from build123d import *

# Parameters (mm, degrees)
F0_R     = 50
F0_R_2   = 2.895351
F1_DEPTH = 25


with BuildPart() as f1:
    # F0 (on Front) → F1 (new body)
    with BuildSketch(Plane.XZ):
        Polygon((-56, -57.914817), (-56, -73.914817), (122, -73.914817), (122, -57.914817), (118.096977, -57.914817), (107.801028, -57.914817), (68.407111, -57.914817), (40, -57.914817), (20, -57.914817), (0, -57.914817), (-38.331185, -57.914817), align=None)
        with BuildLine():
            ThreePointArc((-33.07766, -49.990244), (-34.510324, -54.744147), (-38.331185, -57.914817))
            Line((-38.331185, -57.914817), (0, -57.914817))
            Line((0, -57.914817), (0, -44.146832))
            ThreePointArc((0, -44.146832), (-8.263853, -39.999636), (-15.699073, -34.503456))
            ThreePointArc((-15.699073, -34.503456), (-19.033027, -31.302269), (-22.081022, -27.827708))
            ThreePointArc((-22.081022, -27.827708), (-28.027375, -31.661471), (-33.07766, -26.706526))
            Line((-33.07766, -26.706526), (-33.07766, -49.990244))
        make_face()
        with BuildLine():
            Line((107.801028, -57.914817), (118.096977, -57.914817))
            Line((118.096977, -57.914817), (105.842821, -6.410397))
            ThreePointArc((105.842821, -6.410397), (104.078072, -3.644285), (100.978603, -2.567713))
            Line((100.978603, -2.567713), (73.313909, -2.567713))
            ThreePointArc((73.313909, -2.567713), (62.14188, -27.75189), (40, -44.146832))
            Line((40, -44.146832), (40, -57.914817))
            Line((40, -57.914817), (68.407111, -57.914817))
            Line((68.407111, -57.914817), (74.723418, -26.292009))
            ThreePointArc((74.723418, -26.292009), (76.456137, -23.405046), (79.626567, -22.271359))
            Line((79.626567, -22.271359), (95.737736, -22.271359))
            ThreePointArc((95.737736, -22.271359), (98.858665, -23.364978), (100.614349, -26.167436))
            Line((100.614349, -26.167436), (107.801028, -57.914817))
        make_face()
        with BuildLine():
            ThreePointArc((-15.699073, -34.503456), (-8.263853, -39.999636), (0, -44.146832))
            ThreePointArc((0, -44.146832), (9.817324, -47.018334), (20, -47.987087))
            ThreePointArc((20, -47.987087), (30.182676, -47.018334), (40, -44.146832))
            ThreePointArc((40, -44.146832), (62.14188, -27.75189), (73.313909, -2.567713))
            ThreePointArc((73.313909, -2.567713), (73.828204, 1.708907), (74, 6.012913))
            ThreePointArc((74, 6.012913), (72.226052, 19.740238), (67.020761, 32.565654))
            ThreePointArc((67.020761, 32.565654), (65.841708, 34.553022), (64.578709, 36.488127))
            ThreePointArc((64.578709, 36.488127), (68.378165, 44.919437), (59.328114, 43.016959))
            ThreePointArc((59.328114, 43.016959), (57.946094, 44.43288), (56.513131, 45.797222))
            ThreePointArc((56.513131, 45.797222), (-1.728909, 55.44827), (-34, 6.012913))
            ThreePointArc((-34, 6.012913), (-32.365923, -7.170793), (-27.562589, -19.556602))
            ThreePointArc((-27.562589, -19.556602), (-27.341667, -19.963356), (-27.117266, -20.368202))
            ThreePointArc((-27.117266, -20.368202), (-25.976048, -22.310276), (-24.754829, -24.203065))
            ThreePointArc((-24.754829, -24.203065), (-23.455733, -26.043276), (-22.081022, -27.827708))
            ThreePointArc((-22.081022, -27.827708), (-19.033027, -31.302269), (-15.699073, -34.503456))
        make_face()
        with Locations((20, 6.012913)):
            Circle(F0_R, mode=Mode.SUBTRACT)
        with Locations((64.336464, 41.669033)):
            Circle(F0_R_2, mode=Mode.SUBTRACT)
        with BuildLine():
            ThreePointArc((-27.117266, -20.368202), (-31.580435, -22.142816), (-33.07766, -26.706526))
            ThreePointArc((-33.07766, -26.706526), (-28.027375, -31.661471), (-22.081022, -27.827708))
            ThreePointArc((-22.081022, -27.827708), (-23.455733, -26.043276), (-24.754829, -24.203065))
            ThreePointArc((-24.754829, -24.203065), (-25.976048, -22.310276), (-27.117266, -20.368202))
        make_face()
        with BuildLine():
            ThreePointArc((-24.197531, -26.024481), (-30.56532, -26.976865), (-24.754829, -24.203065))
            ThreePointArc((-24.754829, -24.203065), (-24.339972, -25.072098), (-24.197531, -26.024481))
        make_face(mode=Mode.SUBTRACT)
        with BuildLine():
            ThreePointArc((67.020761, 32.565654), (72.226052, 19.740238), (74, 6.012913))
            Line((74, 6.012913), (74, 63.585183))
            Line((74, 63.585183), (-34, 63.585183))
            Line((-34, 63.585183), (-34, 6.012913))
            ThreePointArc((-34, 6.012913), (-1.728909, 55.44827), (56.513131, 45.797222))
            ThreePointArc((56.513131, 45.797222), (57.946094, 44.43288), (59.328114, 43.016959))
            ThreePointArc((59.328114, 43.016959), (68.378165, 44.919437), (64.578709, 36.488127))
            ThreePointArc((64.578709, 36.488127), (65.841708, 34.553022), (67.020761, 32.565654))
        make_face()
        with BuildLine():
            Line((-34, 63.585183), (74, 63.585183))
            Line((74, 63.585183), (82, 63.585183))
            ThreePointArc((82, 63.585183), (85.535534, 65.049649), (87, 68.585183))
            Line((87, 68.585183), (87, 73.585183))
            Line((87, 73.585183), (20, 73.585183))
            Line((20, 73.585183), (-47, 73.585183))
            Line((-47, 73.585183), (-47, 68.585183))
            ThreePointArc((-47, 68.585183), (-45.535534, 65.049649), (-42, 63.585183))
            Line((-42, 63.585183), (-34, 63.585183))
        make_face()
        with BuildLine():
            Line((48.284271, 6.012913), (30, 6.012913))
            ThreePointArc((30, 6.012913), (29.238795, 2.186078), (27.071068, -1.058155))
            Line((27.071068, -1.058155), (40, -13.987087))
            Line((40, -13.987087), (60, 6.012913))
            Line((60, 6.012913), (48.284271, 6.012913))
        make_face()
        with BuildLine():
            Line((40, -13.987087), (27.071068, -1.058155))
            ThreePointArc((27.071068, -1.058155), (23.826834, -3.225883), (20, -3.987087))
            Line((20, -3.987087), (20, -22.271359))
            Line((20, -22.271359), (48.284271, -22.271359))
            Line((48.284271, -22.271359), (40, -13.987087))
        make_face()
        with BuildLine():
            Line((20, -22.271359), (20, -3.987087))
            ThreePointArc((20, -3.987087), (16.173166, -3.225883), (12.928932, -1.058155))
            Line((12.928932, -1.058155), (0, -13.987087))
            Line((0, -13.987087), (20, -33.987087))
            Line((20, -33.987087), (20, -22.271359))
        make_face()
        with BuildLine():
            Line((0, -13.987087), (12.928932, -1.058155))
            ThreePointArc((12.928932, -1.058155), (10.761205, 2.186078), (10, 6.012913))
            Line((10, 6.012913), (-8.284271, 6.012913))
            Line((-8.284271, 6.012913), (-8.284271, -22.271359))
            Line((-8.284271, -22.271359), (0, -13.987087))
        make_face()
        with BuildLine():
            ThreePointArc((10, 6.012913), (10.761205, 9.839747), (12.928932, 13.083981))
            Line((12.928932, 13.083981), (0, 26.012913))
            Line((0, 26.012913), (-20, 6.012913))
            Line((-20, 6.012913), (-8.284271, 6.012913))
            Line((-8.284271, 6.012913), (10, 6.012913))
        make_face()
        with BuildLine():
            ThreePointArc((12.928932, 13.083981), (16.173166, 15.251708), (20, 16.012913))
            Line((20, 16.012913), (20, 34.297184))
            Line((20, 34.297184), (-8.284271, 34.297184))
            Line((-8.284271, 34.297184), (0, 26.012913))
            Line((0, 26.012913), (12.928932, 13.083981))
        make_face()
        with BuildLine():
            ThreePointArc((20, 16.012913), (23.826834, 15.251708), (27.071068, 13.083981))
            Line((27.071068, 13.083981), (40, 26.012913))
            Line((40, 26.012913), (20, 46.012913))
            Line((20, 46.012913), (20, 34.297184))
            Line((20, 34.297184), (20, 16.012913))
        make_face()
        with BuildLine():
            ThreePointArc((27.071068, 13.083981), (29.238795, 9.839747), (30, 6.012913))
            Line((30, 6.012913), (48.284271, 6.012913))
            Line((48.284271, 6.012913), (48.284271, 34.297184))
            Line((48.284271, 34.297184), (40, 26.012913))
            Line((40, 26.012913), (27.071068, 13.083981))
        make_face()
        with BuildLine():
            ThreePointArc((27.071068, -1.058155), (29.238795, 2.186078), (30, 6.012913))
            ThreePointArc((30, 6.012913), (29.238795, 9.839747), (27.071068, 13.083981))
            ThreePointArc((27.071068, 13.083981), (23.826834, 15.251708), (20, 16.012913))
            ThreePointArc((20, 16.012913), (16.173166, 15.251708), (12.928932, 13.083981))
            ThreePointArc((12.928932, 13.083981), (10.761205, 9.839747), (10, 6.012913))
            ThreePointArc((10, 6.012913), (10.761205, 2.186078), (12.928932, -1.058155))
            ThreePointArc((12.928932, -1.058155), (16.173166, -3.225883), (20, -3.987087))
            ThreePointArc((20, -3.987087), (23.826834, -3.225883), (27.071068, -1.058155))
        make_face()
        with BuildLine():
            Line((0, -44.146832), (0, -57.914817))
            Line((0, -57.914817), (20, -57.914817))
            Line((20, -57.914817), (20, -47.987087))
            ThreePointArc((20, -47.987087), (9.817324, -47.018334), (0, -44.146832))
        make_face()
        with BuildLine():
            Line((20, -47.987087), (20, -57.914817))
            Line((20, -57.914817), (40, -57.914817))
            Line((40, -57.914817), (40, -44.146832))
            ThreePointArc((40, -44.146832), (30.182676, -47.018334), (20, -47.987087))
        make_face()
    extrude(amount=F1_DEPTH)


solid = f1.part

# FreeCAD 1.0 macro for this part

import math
import FreeCAD as App
import Part
import Sketcher
Q = App.Units.Quantity


def add_polygon(sketch, points):
    """Adds a closed chain of lines whose ends are joined by coincident constraints."""
    first, n = sketch.GeometryCount, len(points)
    for a, b in zip(points, points[1:] + points[:1]):
        sketch.addGeometry(Part.LineSegment(App.Vector(*a, 0), App.Vector(*b, 0)), False)
    for i in range(n):
        sketch.addConstraint(Sketcher.Constraint("Coincident", first + i, 2, first + (i + 1) % n, 1))

doc = App.newDocument("Part")
body = doc.addObject("PartDesign::Body", "Body")
body.AllowCompound = True

sketch1 = body.newObject("Sketcher::SketchObject", "Sketch")
sketch1.AttachmentSupport = (doc.getObject("XZ_Plane"), [""])
sketch1.MapMode = "FlatFace"
sketch1.addGeometry(Part.LineSegment(App.Vector(-56, -57.914817, 0), App.Vector(-56, -73.914817, 0)), False)
sketch1.addGeometry(Part.LineSegment(App.Vector(-56, -73.914817, 0), App.Vector(122, -73.914817, 0)), False)
sketch1.addGeometry(Part.LineSegment(App.Vector(122, -73.914817, 0), App.Vector(122, -57.914817, 0)), False)
sketch1.addGeometry(Part.LineSegment(App.Vector(122, -57.914817, 0), App.Vector(118.096977, -57.914817, 0)), False)
sketch1.addGeometry(Part.LineSegment(App.Vector(118.096977, -57.914817, 0), App.Vector(105.842821, -6.410397, 0)), False)
sketch1.addGeometry(Part.ArcOfCircle(Part.Circle(App.Vector(100.978602, -7.567714, 0), App.Vector(0, 0, 1), 5.000001), math.radians(13.383241), math.radians(89.999987)), False)
sketch1.addGeometry(Part.LineSegment(App.Vector(100.978603, -2.567713, 0), App.Vector(73.313909, -2.567713, 0)), False)
sketch1.addGeometry(Part.ArcOfCircle(Part.Circle(App.Vector(19.999988, 6.012912, 0), App.Vector(0, 0, 1), 54.000012), math.radians(-9.143079), math.radians(0.000001)), False)
sketch1.addGeometry(Part.LineSegment(App.Vector(74, 6.012913, 0), App.Vector(74, 63.585183, 0)), False)
sketch1.addGeometry(Part.LineSegment(App.Vector(74, 63.585183, 0), App.Vector(82, 63.585183, 0)), False)
sketch1.addGeometry(Part.ArcOfCircle(Part.Circle(App.Vector(82, 68.585183, 0), App.Vector(0, 0, 1), 5), math.radians(-90.000004), math.radians(0.000004)), False)
sketch1.addGeometry(Part.LineSegment(App.Vector(87, 68.585183, 0), App.Vector(87, 73.585183, 0)), False)
sketch1.addGeometry(Part.LineSegment(App.Vector(87, 73.585183, 0), App.Vector(-47, 73.585183, 0)), False)
sketch1.addGeometry(Part.LineSegment(App.Vector(-47, 73.585183, 0), App.Vector(-47, 68.585183, 0)), False)
sketch1.addGeometry(Part.ArcOfCircle(Part.Circle(App.Vector(-42, 68.585183, 0), App.Vector(0, 0, 1), 5), math.radians(179.999996), math.radians(270.000004)), False)
sketch1.addGeometry(Part.LineSegment(App.Vector(-42, 63.585183, 0), App.Vector(-34, 63.585183, 0)), False)
sketch1.addGeometry(Part.LineSegment(App.Vector(-34, 63.585183, 0), App.Vector(-34, 6.012913, 0)), False)
sketch1.addGeometry(Part.ArcOfCircle(Part.Circle(App.Vector(19.999997, 6.012913, 0), App.Vector(0, 0, 1), 53.999997), math.radians(180), math.radians(208.262352)), False)
sketch1.addGeometry(Part.ArcOfCircle(Part.Circle(App.Vector(19.99809, 6.011856, 0), App.Vector(0, 0, 1), 53.997817), math.radians(-151.737677), math.radians(-150.755378)), False)
sketch1.addGeometry(Part.ArcOfCircle(Part.Circle(App.Vector(-27.452645, -26.024482, 0), App.Vector(0, 0, 1), 5.666214), math.radians(86.606722), math.radians(186.91348)), False)
sketch1.addGeometry(Part.LineSegment(App.Vector(-33.07766, -26.706526, 0), App.Vector(-33.07766, -49.990244, 0)), False)
sketch1.addGeometry(Part.ArcOfCircle(Part.Circle(App.Vector(-41.681252, -49.990245, 0), App.Vector(0, 0, 1), 8.603592), math.radians(-67.084071), math.radians(0.000005)), False)
sketch1.addGeometry(Part.LineSegment(App.Vector(-38.331185, -57.914817, 0), App.Vector(-56, -57.914817, 0)), False)
sketch1.addGeometry(Part.ArcOfCircle(Part.Circle(App.Vector(-27.452647, -26.024482, 0), App.Vector(0, 0, 1), 3.255116), math.radians(0.000012), math.radians(34.025029)), False)
sketch1.addGeometry(Part.ArcOfCircle(Part.Circle(App.Vector(-27.452646, -26.024481, 0), App.Vector(0, 0, 1), 3.255115), math.radians(34.025036), math.radians(360.000004)), False)
sketch1.addGeometry(Part.LineSegment(App.Vector(107.801028, -57.914817, 0), App.Vector(68.407111, -57.914817, 0)), False)
sketch1.addGeometry(Part.LineSegment(App.Vector(68.407111, -57.914817, 0), App.Vector(74.723418, -26.292009, 0)), False)
sketch1.addGeometry(Part.ArcOfCircle(Part.Circle(App.Vector(79.626566, -27.271357, 0), App.Vector(0, 0, 1), 4.999998), math.radians(89.999989), math.radians(168.704464)), False)
sketch1.addGeometry(Part.LineSegment(App.Vector(79.626567, -22.271359, 0), App.Vector(95.737736, -22.271359, 0)), False)
sketch1.addGeometry(Part.ArcOfCircle(Part.Circle(App.Vector(95.737739, -27.271355, 0), App.Vector(0, 0, 1), 4.999996), math.radians(12.755087), math.radians(90.000033)), False)
sketch1.addGeometry(Part.LineSegment(App.Vector(100.614349, -26.167436, 0), App.Vector(107.801028, -57.914817, 0)), False)
sketch1.addGeometry(Part.Circle(App.Vector(20, 6.012913, 0), App.Vector(0, 0, 1), 50), False)
sketch1.addGeometry(Part.Circle(App.Vector(64.336464, 41.669033, 0), App.Vector(0, 0, 1), 2.895351), False)
add_polygon(sketch1, [(40, 26.012913), (20, 46.012913), (20, 34.297184), (-8.284271, 34.297184), (0, 26.012913), (-20, 6.012913), (-8.284271, 6.012913), (-8.284271, -22.271359), (0, -13.987087), (20, -33.987087), (20, -22.271359), (48.284271, -22.271359), (40, -13.987087), (60, 6.012913), (48.284271, 6.012913), (48.284271, 34.297184)])
sketch1.addConstraint([
    Sketcher.Constraint("Coincident", 0, 2, 1, 1),
    Sketcher.Constraint("Coincident", 1, 2, 2, 1),
    Sketcher.Constraint("Coincident", 2, 2, 3, 1),
    Sketcher.Constraint("Coincident", 3, 2, 4, 1),
    Sketcher.Constraint("Coincident", 4, 2, 5, 1),
    Sketcher.Constraint("Coincident", 5, 2, 6, 1),
    Sketcher.Constraint("Coincident", 6, 2, 7, 1),
    Sketcher.Constraint("Coincident", 7, 2, 8, 1),
    Sketcher.Constraint("Coincident", 8, 2, 9, 1),
    Sketcher.Constraint("Coincident", 9, 2, 10, 1),
    Sketcher.Constraint("Coincident", 10, 2, 11, 1),
    Sketcher.Constraint("Coincident", 11, 2, 12, 1),
    Sketcher.Constraint("Coincident", 12, 2, 13, 1),
    Sketcher.Constraint("Coincident", 13, 2, 14, 1),
    Sketcher.Constraint("Coincident", 14, 2, 15, 1),
    Sketcher.Constraint("Coincident", 15, 2, 16, 1),
    Sketcher.Constraint("Coincident", 16, 2, 17, 1),
    Sketcher.Constraint("Coincident", 17, 2, 18, 1),
    Sketcher.Constraint("Coincident", 18, 2, 19, 1),
    Sketcher.Constraint("Coincident", 19, 2, 20, 1),
    Sketcher.Constraint("Coincident", 20, 2, 21, 2),
    Sketcher.Constraint("Coincident", 21, 1, 22, 1),
    Sketcher.Constraint("Coincident", 22, 2, 0, 1),
    Sketcher.Constraint("Coincident", 23, 1, 24, 2),
    Sketcher.Constraint("Coincident", 24, 1, 23, 2),
    Sketcher.Constraint("Coincident", 25, 2, 26, 1),
    Sketcher.Constraint("Coincident", 26, 2, 27, 2),
    Sketcher.Constraint("Coincident", 27, 1, 28, 1),
    Sketcher.Constraint("Coincident", 28, 2, 29, 2),
    Sketcher.Constraint("Coincident", 29, 1, 30, 1),
    Sketcher.Constraint("Coincident", 30, 2, 25, 1),
    Sketcher.Constraint("Vertical", 0),
    Sketcher.Constraint("Horizontal", 1),
    Sketcher.Constraint("Vertical", 2),
    Sketcher.Constraint("Horizontal", 3),
    Sketcher.Constraint("Horizontal", 6),
    Sketcher.Constraint("Vertical", 8),
    Sketcher.Constraint("Horizontal", 9),
    Sketcher.Constraint("Vertical", 11),
    Sketcher.Constraint("Horizontal", 12),
    Sketcher.Constraint("Vertical", 13),
    Sketcher.Constraint("Horizontal", 15),
    Sketcher.Constraint("Vertical", 16),
    Sketcher.Constraint("Vertical", 20),
    Sketcher.Constraint("Horizontal", 22),
    Sketcher.Constraint("Horizontal", 25),
    Sketcher.Constraint("Horizontal", 28),
    Sketcher.Constraint("Vertical", 34),
    Sketcher.Constraint("Horizontal", 35),
    Sketcher.Constraint("Horizontal", 38),
    Sketcher.Constraint("Vertical", 39),
    Sketcher.Constraint("Vertical", 42),
    Sketcher.Constraint("Horizontal", 43),
    Sketcher.Constraint("Horizontal", 46),
    Sketcher.Constraint("Vertical", 47),
    Sketcher.Constraint("Coincident", 17, 3, 7, 3),
    Sketcher.Constraint("Coincident", 23, 3, 19, 3),
    Sketcher.Constraint("Coincident", 31, 3, 17, 3),
    Sketcher.Constraint("PointOnObject", 36, 2, -2),
    Sketcher.Constraint("PointOnObject", 40, 2, -2),
    Sketcher.Constraint("Diameter", 31, Q("100 mm")),
    Sketcher.Constraint("Radius", 5, Q("5.000001 mm")),
    Sketcher.Constraint("Radius", 10, Q("5 mm")),
    Sketcher.Constraint("Radius", 14, Q("5 mm")),
    Sketcher.Constraint("Radius", 27, Q("4.999998 mm")),
    Sketcher.Constraint("DistanceX", 1, 1, 1, 2, Q("178 mm")),
    Sketcher.Constraint("DistanceX", 9, 1, 9, 2, Q("8 mm")),
    Sketcher.Constraint("DistanceX", 12, 2, 12, 1, Q("134 mm")),
    Sketcher.Constraint("DistanceX", 15, 1, 15, 2, Q("8 mm")),
    Sketcher.Constraint("DistanceY", 0, 2, 0, 1, Q("16 mm")),
    Sketcher.Constraint("DistanceY", 2, 1, 2, 2, Q("16 mm")),
    Sketcher.Constraint("DistanceY", 11, 1, 11, 2, Q("5 mm")),
    Sketcher.Constraint("DistanceY", 13, 2, 13, 1, Q("5 mm")),
    Sketcher.Constraint("DistanceX", -1, 1, 10, 3, Q("82 mm")),
    Sketcher.Constraint("DistanceX", -1, 1, 31, 3, Q("20 mm")),
    Sketcher.Constraint("DistanceX", 0, 2, -1, 1, Q("56 mm")),
    Sketcher.Constraint("DistanceX", -1, 1, 7, 2, Q("74 mm")),
    Sketcher.Constraint("DistanceX", 14, 2, -1, 1, Q("42 mm")),
    Sketcher.Constraint("DistanceX", -1, 1, 33, 2, Q("20 mm")),
    Sketcher.Constraint("DistanceX", 37, 2, -1, 1, Q("20 mm")),
    Sketcher.Constraint("DistanceX", -1, 1, 41, 2, Q("20 mm")),
    Sketcher.Constraint("DistanceX", -1, 1, 44, 2, Q("40 mm")),
    Sketcher.Constraint("DistanceX", -1, 1, 45, 2, Q("60 mm")),
    Sketcher.Constraint("DistanceX", -1, 1, 48, 2, Q("40 mm")),
    Sketcher.Constraint("Diameter", 32, Q("5.790702 mm")),
    Sketcher.Constraint("Radius", 21, Q("8.603592 mm")),
    Sketcher.Constraint("Radius", 18, Q("53.997817 mm")),
    Sketcher.Constraint("Radius", 19, Q("5.666214 mm")),
    Sketcher.Constraint("Radius", 23, Q("3.255116 mm")),
    Sketcher.Constraint("Radius", 24, Q("3.255115 mm")),
    Sketcher.Constraint("Radius", 29, Q("4.999996 mm")),
    Sketcher.Constraint("DistanceX", 28, 1, 28, 2, Q("16.111169 mm")),
    Sketcher.Constraint("DistanceX", 35, 2, 35, 1, Q("28.284271 mm")),
    Sketcher.Constraint("DistanceX", 38, 1, 38, 2, Q("11.715729 mm")),
    Sketcher.Constraint("DistanceX", 43, 1, 43, 2, Q("28.284271 mm")),
    Sketcher.Constraint("DistanceX", 46, 2, 46, 1, Q("11.715729 mm")),
    Sketcher.Constraint("DistanceY", 8, 1, 8, 2, Q("57.57227 mm")),
    Sketcher.Constraint("DistanceY", 16, 2, 16, 1, Q("57.57227 mm")),
    Sketcher.Constraint("DistanceY", 34, 2, 34, 1, Q("11.715729 mm")),
    Sketcher.Constraint("DistanceY", 42, 1, 42, 2, Q("11.715728 mm")),
    Sketcher.Constraint("DistanceY", 47, 1, 47, 2, Q("28.284271 mm")),
    Sketcher.Constraint("DistanceX", -1, 1, 5, 3, Q("100.978602 mm")),
    Sketcher.Constraint("Distance", 33, Q("28.284271 mm")),
    Sketcher.Constraint("Distance", 36, Q("11.715728 mm")),
    Sketcher.Constraint("Distance", 37, Q("28.284271 mm")),
    Sketcher.Constraint("Distance", 40, Q("11.715729 mm")),
    Sketcher.Constraint("Distance", 41, Q("28.284271 mm")),
    Sketcher.Constraint("Distance", 44, Q("11.715729 mm")),
    Sketcher.Constraint("Distance", 45, Q("28.284271 mm")),
    Sketcher.Constraint("Distance", 48, Q("11.715728 mm")),
    Sketcher.Constraint("DistanceX", 3, 2, 3, 1, Q("3.903023 mm")),
    Sketcher.Constraint("DistanceX", 6, 2, 6, 1, Q("27.664694 mm")),
    Sketcher.Constraint("DistanceX", 22, 2, 22, 1, Q("17.668815 mm")),
    Sketcher.Constraint("DistanceX", 25, 2, 25, 1, Q("39.393917 mm")),
    Sketcher.Constraint("DistanceY", 20, 2, 20, 1, Q("23.283718 mm")),
    Sketcher.Constraint("DistanceY", -1, 1, 7, 3, Q("6.012912 mm")),
    Sketcher.Constraint("DistanceX", -1, 1, 18, 3, Q("19.99809 mm")),
    Sketcher.Constraint("DistanceY", 19, 3, -1, 1, Q("26.024482 mm")),
    Sketcher.Constraint("DistanceX", 21, 3, -1, 1, Q("41.681252 mm")),
    Sketcher.Constraint("DistanceX", -1, 1, 29, 3, Q("95.737739 mm")),
    Sketcher.Constraint("DistanceX", -1, 1, 4, 2, Q("105.842821 mm")),
    Sketcher.Constraint("DistanceX", -1, 1, 6, 2, Q("73.313909 mm")),
    Sketcher.Constraint("DistanceX", 17, 2, -1, 1, Q("27.562589 mm")),
    Sketcher.Constraint("DistanceX", 23, 1, -1, 1, Q("24.197531 mm")),
    Sketcher.Constraint("DistanceY", 23, 1, -1, 1, Q("26.024481 mm")),
    Sketcher.Constraint("DistanceX", 24, 1, -1, 1, Q("24.754829 mm")),
    Sketcher.Constraint("DistanceX", -1, 1, 25, 2, Q("68.407111 mm")),
    Sketcher.Constraint("DistanceY", 26, 2, -1, 1, Q("26.292009 mm")),
    Sketcher.Constraint("DistanceY", 27, 1, -1, 1, Q("22.271359 mm")),
    Sketcher.Constraint("DistanceX", -1, 1, 29, 1, Q("100.614349 mm")),
    Sketcher.Constraint("DistanceY", 39, 2, -1, 1, Q("22.271359 mm")),
    Sketcher.Constraint("Distance", 4, Q("52.942135 mm")),
    Sketcher.Constraint("Distance", 26, Q("32.247445 mm")),
    Sketcher.Constraint("Distance", 30, Q("32.550646 mm")),
    Sketcher.Constraint("DistanceY", -1, 1, 10, 3, Q("68.585183 mm")),
    Sketcher.Constraint("DistanceY", -1, 1, 14, 3, Q("68.585183 mm")),
    Sketcher.Constraint("DistanceX", -1, 1, 32, 3, Q("64.336464 mm")),
    Sketcher.Constraint("DistanceY", -1, 1, 32, 3, Q("41.669033 mm")),
    Sketcher.Constraint("DistanceY", -1, 1, 10, 2, Q("68.585183 mm")),
    Sketcher.Constraint("DistanceX", -1, 1, 27, 1, Q("79.626567 mm")),
])
pad1 = body.newObject("PartDesign::Pad", "Pad")
pad1.Profile = sketch1
pad1.Length = 25

doc.recompute()
